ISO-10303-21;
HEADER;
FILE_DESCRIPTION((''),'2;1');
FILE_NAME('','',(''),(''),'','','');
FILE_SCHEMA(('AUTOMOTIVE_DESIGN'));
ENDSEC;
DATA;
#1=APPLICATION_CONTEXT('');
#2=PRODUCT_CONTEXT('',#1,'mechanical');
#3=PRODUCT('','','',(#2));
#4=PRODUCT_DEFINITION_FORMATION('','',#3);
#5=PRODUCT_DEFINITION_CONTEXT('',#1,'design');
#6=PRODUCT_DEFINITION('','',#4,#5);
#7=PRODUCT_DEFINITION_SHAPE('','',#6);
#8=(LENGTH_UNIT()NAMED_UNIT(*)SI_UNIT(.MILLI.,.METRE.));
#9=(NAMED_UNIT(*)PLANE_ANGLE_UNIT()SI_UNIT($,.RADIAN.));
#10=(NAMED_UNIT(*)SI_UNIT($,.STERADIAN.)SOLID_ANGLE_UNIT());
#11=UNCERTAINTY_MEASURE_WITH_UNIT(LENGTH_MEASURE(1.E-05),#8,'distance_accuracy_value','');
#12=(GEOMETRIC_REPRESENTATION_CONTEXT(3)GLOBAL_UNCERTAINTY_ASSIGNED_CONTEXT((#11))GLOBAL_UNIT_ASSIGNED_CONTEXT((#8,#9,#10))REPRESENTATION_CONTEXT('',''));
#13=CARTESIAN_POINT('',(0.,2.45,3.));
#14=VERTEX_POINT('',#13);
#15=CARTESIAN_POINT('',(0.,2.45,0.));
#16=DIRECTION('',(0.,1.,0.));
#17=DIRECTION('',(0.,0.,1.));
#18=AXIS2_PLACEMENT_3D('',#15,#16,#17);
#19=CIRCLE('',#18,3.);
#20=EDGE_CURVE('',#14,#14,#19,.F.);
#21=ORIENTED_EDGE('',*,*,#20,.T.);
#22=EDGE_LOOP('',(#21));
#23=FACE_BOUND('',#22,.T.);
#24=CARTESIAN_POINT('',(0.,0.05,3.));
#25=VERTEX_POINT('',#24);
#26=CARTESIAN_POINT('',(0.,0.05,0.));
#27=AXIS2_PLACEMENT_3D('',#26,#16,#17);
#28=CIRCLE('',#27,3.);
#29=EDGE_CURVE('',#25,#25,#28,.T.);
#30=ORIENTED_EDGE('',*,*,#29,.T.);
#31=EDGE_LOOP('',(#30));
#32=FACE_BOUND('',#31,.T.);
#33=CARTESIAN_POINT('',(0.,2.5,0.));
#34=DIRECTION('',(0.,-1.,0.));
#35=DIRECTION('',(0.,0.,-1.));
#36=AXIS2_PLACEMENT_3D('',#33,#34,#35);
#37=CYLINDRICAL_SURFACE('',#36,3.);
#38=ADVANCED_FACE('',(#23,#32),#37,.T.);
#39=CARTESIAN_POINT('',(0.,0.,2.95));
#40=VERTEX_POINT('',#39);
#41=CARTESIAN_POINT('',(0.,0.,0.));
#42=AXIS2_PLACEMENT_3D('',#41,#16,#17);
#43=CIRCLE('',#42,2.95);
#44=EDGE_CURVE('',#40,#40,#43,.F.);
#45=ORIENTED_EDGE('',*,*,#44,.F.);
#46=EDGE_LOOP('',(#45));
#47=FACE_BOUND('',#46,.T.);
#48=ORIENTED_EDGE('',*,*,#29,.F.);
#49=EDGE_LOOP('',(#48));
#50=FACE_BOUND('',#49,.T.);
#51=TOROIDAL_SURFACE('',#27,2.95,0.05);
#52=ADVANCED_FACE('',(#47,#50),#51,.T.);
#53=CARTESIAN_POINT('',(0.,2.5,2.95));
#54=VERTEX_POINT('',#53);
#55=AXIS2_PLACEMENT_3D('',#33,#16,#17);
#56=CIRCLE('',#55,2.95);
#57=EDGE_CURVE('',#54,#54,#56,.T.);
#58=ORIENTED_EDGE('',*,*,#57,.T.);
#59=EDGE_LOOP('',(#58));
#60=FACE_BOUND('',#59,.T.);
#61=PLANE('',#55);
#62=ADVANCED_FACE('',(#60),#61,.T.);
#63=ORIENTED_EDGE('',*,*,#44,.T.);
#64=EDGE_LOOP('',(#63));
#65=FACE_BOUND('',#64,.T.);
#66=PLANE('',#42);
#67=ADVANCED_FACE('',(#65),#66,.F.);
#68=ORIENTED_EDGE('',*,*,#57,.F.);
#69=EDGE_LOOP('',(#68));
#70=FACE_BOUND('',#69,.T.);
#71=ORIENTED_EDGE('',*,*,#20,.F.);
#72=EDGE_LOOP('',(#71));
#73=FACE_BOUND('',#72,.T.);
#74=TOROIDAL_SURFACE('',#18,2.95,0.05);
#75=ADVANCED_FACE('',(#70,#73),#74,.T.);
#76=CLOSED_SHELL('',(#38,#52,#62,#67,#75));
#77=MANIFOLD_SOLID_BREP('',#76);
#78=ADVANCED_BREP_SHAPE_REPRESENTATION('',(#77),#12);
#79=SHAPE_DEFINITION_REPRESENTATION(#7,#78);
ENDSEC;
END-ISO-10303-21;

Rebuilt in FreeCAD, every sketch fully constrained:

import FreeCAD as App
import Part
import Sketcher

V = App.Vector
Q = App.Units.Quantity


def edges_at(feature, points):
    """Names of the edges that pass closest to the given points."""
    edges = feature.Shape.Edges
    near = lambda p: min(range(len(edges)), key=lambda i: edges[i].distToShape(Part.Vertex(*p))[0])
    return sorted({f"Edge{near(p) + 1}" for p in points})

doc = App.newDocument("Part")
params = doc.addObject("Spreadsheet::Sheet", "Params")
for row, (alias, value) in enumerate([
    ("sketch1_diameter", "6 mm"),
    ("pad1_length", "2.5 mm"),
    ("fillet_radius", "0.05 mm"),
    ("fillet2_radius", "0.05 mm"),
], start=1):
    params.set(f"A{row}", alias)
    params.set(f"B{row}", "=" + value)
    params.setAlias(f"B{row}", alias)

body = doc.addObject("PartDesign::Body", "Body")

# Sketch on XZ plane
sketch1 = body.newObject("Sketcher::SketchObject", "Sketch")
sketch1.AttachmentSupport = (doc.getObject("XZ_Plane"), [""])
sketch1.MapMode = "FlatFace"
sketch1.addGeometry(Part.Circle(V(0, 0, 0), V(0, 0, 1), 3), False)
sketch1.addConstraint(Sketcher.Constraint("Coincident", 0, 3, -1, 1))
sketch1.addConstraint(Sketcher.Constraint("Diameter", 0, Q("6 mm")))
sketch1.setExpression("Constraints[1]", "Params.sketch1_diameter")
pad1 = body.newObject("PartDesign::Pad", "Pad")
pad1.Profile = sketch1
pad1.setExpression("Length", "Params.pad1_length")
pad1.Reversed = True
doc.recompute()

fillet = body.newObject("PartDesign::Fillet", "Fillet")
fillet.Base = (pad1, edges_at(pad1, [(0, 2.5, -3)]))
fillet.setExpression("Radius", "Params.fillet_radius")
doc.recompute()

fillet2 = body.newObject("PartDesign::Fillet", "Fillet001")
fillet2.Base = (fillet, edges_at(fillet, [(0, 0, -3)]))
fillet2.setExpression("Radius", "Params.fillet2_radius")

doc.recompute()
